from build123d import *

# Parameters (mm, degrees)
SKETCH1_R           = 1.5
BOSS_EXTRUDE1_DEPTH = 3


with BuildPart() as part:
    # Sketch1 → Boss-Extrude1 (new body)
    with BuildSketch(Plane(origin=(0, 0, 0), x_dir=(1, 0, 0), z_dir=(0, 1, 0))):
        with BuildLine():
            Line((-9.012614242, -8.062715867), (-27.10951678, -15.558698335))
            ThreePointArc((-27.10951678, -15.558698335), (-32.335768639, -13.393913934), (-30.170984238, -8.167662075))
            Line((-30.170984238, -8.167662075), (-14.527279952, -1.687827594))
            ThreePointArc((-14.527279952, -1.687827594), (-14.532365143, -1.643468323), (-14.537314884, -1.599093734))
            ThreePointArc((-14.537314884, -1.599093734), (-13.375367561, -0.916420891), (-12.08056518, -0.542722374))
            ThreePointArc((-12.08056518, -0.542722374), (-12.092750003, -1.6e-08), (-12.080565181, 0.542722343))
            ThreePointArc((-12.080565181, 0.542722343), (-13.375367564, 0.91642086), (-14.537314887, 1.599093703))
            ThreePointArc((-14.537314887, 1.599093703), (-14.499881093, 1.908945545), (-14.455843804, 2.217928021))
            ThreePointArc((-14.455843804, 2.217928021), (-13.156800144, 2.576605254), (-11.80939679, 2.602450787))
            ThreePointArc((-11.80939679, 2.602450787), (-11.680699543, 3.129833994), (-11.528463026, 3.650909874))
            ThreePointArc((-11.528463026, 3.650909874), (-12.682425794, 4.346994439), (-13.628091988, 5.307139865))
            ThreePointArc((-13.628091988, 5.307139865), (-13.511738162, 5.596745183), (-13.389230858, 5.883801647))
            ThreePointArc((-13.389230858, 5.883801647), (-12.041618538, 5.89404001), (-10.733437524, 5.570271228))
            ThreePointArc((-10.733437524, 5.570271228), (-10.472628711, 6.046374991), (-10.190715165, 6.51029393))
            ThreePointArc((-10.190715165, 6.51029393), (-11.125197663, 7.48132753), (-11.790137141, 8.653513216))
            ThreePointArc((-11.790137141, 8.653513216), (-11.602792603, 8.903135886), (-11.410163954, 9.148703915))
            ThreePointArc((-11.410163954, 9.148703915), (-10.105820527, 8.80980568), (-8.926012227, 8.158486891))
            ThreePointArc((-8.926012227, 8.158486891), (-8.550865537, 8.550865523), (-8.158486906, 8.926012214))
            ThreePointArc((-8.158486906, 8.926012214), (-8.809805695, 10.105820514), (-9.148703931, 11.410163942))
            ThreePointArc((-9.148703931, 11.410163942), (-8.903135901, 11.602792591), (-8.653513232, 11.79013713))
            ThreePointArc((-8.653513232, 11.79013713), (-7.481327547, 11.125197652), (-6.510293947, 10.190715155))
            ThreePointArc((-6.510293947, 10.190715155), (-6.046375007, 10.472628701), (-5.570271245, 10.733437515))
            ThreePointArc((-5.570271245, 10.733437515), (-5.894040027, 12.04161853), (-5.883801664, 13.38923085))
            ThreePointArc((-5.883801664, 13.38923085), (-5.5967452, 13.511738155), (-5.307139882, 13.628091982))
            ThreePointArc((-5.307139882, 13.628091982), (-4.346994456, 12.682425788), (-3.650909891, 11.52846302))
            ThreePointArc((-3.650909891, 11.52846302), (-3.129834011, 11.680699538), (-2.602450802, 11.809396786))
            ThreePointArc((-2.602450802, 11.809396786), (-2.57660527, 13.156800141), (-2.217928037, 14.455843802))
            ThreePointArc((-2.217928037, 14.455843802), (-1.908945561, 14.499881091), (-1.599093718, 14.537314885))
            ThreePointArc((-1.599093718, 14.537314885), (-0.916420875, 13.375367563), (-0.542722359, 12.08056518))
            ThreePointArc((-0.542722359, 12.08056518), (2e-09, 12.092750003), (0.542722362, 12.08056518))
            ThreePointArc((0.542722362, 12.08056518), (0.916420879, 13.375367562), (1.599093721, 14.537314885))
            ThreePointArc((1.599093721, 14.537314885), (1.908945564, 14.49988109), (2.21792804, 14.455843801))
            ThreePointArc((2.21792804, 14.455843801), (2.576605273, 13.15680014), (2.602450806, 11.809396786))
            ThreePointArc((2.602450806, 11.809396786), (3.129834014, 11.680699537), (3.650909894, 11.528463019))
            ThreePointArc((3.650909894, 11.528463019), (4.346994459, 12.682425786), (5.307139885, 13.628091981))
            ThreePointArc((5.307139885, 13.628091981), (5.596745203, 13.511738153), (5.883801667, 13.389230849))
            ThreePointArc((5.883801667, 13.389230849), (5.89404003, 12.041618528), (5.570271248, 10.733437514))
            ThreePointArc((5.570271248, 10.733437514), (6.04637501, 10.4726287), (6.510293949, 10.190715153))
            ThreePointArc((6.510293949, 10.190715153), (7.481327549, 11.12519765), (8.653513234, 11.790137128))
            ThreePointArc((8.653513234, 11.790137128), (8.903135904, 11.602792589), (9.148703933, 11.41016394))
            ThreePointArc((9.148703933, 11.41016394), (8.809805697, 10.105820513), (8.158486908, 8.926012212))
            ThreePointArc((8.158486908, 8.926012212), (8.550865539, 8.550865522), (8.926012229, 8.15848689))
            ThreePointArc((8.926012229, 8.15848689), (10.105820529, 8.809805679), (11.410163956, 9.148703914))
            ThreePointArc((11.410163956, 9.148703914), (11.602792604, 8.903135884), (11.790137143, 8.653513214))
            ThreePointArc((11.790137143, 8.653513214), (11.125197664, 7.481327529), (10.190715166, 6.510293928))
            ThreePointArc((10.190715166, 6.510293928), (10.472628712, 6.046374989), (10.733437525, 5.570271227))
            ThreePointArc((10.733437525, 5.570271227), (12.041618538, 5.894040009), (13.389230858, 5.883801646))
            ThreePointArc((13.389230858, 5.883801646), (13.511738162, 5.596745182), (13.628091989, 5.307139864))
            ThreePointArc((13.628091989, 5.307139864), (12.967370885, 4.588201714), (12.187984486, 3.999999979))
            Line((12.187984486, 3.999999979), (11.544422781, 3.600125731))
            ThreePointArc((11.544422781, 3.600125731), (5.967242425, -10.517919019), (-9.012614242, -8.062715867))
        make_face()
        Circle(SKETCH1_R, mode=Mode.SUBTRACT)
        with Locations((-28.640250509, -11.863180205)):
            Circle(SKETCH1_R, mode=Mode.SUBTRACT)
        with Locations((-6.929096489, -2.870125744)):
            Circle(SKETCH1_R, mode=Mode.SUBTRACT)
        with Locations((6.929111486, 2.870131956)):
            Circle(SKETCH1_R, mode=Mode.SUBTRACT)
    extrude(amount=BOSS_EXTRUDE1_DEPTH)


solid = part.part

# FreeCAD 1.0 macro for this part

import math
import FreeCAD as App
import Part
import Sketcher
from FreeCAD import Vector
Q = App.Units.Quantity

doc = App.newDocument("Part")
params = doc.addObject("Spreadsheet::Sheet", "Params")
for row, (alias, value) in enumerate([
    ("sketch1_diameter", "3 mm"),
    ("sketch1_radius", "4 mm"),
    ("sketch1_radius2", "5.4 mm"),
    ("pad1_length", "3 mm"),
], start=1):
    params.set(f"A{row}", alias)
    params.set(f"B{row}", "=" + value)
    params.setAlias(f"B{row}", alias)

body = doc.addObject("PartDesign::Body", "Body")

# Sketch on XZ plane
sketch1 = doc.addObject("Sketcher::SketchObject", "Sketch")
body.addObject(sketch1)
sketch1.AttachmentSupport = (doc.XZ_Plane, [""])
sketch1.MapMode = "FlatFace"
sketch1.addGeometry(Part.LineSegment(Vector(-27.109517, 15.558698, 0), Vector(-9.012614, 8.062716, 0)), False)
sketch1.addGeometry(Part.ArcOfCircle(Part.Circle(Vector(0, 0, 0), Vector(0, 0, 1), 12.09275), math.radians(-17.320078), math.radians(138.184075)), False)
sketch1.addGeometry(Part.LineSegment(Vector(11.544423, -3.600126, 0), Vector(12.187984, -4, 0)), False)
sketch1.addGeometry(Part.ArcOfCircle(Part.Circle(Vector(9.338053, -8.586708, 0), Vector(0, 0, 1), 5.4), math.radians(37.396512), math.radians(58.14543)), False)
sketch1.addGeometry(Part.ArcOfCircle(Part.Circle(Vector(0, 0, 0), Vector(0, 0, 1), 14.625), math.radians(-23.722744), math.radians(-21.277256)), False)
sketch1.addGeometry(Part.ArcOfCircle(Part.Circle(Vector(12.674721, -0.531281, 0), Vector(0, 0, 1), 5.4), math.radians(-111.069299), math.radians(-82.396512)), False)
sketch1.addGeometry(Part.ArcOfCircle(Part.Circle(Vector(0, 0, 0), Vector(0, 0, 1), 12.092749), math.radians(-32.572297), math.radians(-27.427703)), False)
sketch1.addGeometry(Part.ArcOfCircle(Part.Circle(Vector(6.797463, -10.710989, 0), Vector(0, 0, 1), 5.4), math.radians(22.396512), math.radians(51.069299)), False)
sketch1.addGeometry(Part.ArcOfCircle(Part.Circle(Vector(-0.000003, 0.000002, 0), Vector(0, 0, 1), 14.625003), math.radians(-38.722744), math.radians(-36.277256)), False)
sketch1.addGeometry(Part.ArcOfCircle(Part.Circle(Vector(12.105334, -3.793637, 0), Vector(0, 0, 1), 5.4), math.radians(-126.069299), math.radians(-97.396512)), False)
sketch1.addGeometry(Part.ArcOfCircle(Part.Circle(Vector(0, 0, 0), Vector(0, 0, 1), 12.09275), math.radians(-47.572297), math.radians(-42.427703)), False)
sketch1.addGeometry(Part.ArcOfCircle(Part.Circle(Vector(3.793637, -12.105334, 0), Vector(0, 0, 1), 5.4), math.radians(7.396512), math.radians(36.069299)), False)
sketch1.addGeometry(Part.ArcOfCircle(Part.Circle(Vector(0, 0, 0), Vector(0, 0, 1), 14.625), math.radians(-53.722744), math.radians(-51.277256)), False)
sketch1.addGeometry(Part.ArcOfCircle(Part.Circle(Vector(10.710989, -6.797463, 0), Vector(0, 0, 1), 5.4), math.radians(-141.069299), math.radians(-112.396512)), False)
sketch1.addGeometry(Part.ArcOfCircle(Part.Circle(Vector(0, 0, 0), Vector(0, 0, 1), 12.09275), math.radians(-62.572297), math.radians(-57.427702)), False)
sketch1.addGeometry(Part.ArcOfCircle(Part.Circle(Vector(0.531281, -12.674721, 0), Vector(0, 0, 1), 5.4), math.radians(-7.603488), math.radians(21.069299)), False)
sketch1.addGeometry(Part.ArcOfCircle(Part.Circle(Vector(-0.000001, 0.000001, 0), Vector(0, 0, 1), 14.625002), math.radians(-68.722744), math.radians(-66.277256)), False)
sketch1.addGeometry(Part.ArcOfCircle(Part.Circle(Vector(8.586708, -9.338053, 0), Vector(0, 0, 1), 5.4), math.radians(-156.069299), math.radians(-127.396512)), False)
sketch1.addGeometry(Part.ArcOfCircle(Part.Circle(Vector(0, 0, 0), Vector(0, 0, 1), 12.09275), math.radians(-77.572297), math.radians(-72.427703)), False)
sketch1.addGeometry(Part.ArcOfCircle(Part.Circle(Vector(-2.767281, -12.380346, 0), Vector(0, 0, 1), 5.4), math.radians(-22.603488), math.radians(6.069299)), False)
sketch1.addGeometry(Part.ArcOfCircle(Part.Circle(Vector(0, 0, 0), Vector(0, 0, 1), 14.625), math.radians(-83.722744), math.radians(-81.277256)), False)
sketch1.addGeometry(Part.ArcOfCircle(Part.Circle(Vector(5.877257, -11.242271, 0), Vector(0, 0, 1), 5.4), math.radians(-171.069299), math.radians(-142.396512)), False)
sketch1.addGeometry(Part.ArcOfCircle(Part.Circle(Vector(0, 0, 0), Vector(0, 0, 1), 12.09275), math.radians(-92.572297), math.radians(-87.427703)), False)
sketch1.addGeometry(Part.ArcOfCircle(Part.Circle(Vector(-5.877257, -11.242271, 0), Vector(0, 0, 1), 5.4), math.radians(-37.603488), math.radians(-8.930701)), False)
sketch1.addGeometry(Part.ArcOfCircle(Part.Circle(Vector(0, -0.000002, 0), Vector(0, 0, 1), 14.624998), math.radians(-98.722744), math.radians(-96.277256)), False)
sketch1.addGeometry(Part.ArcOfCircle(Part.Circle(Vector(2.767281, -12.380346, 0), Vector(0, 0, 1), 5.4), math.radians(173.930701), math.radians(202.603488)), False)
sketch1.addGeometry(Part.ArcOfCircle(Part.Circle(Vector(0, 0, 0), Vector(0, 0, 1), 12.09275), math.radians(-107.572297), math.radians(-102.427703)), False)
sketch1.addGeometry(Part.ArcOfCircle(Part.Circle(Vector(-8.586708, -9.338053, 0), Vector(0, 0, 1), 5.4), math.radians(-52.603488), math.radians(-23.930701)), False)
sketch1.addGeometry(Part.ArcOfCircle(Part.Circle(Vector(-0.000001, -0.000002, 0), Vector(0, 0, 1), 14.624998), math.radians(-113.722744), math.radians(-111.277256)), False)
sketch1.addGeometry(Part.ArcOfCircle(Part.Circle(Vector(-0.531281, -12.674721, 0), Vector(0, 0, 1), 5.4), math.radians(158.930701), math.radians(187.603488)), False)
sketch1.addGeometry(Part.ArcOfCircle(Part.Circle(Vector(0, 0, 0), Vector(0, 0, 1), 12.09275), math.radians(-122.572297), math.radians(-117.427703)), False)
sketch1.addGeometry(Part.ArcOfCircle(Part.Circle(Vector(-10.710989, -6.797463, 0), Vector(0, 0, 1), 5.4), math.radians(-67.603488), math.radians(-38.930701)), False)
sketch1.addGeometry(Part.ArcOfCircle(Part.Circle(Vector(0.000002, 0.000002, 0), Vector(0, 0, 1), 14.625003), math.radians(-128.722744), math.radians(-126.277256)), False)
sketch1.addGeometry(Part.ArcOfCircle(Part.Circle(Vector(-3.793637, -12.105334, 0), Vector(0, 0, 1), 5.4), math.radians(143.930701), math.radians(172.603488)), False)
sketch1.addGeometry(Part.ArcOfCircle(Part.Circle(Vector(0, 0, 0), Vector(0, 0, 1), 12.09275), math.radians(-137.572297), math.radians(-132.427703)), False)
sketch1.addGeometry(Part.ArcOfCircle(Part.Circle(Vector(-12.105334, -3.793637, 0), Vector(0, 0, 1), 5.4), math.radians(-82.603488), math.radians(-53.930701)), False)
sketch1.addGeometry(Part.ArcOfCircle(Part.Circle(Vector(-0.000001, -0.000001, 0), Vector(0, 0, 1), 14.624998), math.radians(-143.722744), math.radians(-141.277256)), False)
sketch1.addGeometry(Part.ArcOfCircle(Part.Circle(Vector(-6.797463, -10.710989, 0), Vector(0, 0, 1), 5.4), math.radians(128.930701), math.radians(157.603488)), False)
sketch1.addGeometry(Part.ArcOfCircle(Part.Circle(Vector(-0.000001, 0, 0), Vector(0, 0, 1), 12.092749), math.radians(-152.572298), math.radians(-147.427703)), False)
sketch1.addGeometry(Part.ArcOfCircle(Part.Circle(Vector(-12.674721, -0.531281, 0), Vector(0, 0, 1), 5.4), math.radians(-97.603488), math.radians(-68.930701)), False)
sketch1.addGeometry(Part.ArcOfCircle(Part.Circle(Vector(-0.000002, -0.000001, 0), Vector(0, 0, 1), 14.624997), math.radians(-158.722744), math.radians(-156.277256)), False)
sketch1.addGeometry(Part.ArcOfCircle(Part.Circle(Vector(-9.338053, -8.586708, 0), Vector(0, 0, 1), 5.4), math.radians(113.930701), math.radians(142.603488)), False)
sketch1.addGeometry(Part.ArcOfCircle(Part.Circle(Vector(0, 0, 0), Vector(0, 0, 1), 12.09275), math.radians(-167.572297), math.radians(-162.427703)), False)
sketch1.addGeometry(Part.ArcOfCircle(Part.Circle(Vector(-12.380346, 2.767281, 0), Vector(0, 0, 1), 5.4), math.radians(-112.603488), math.radians(-83.930701)), False)
sketch1.addGeometry(Part.ArcOfCircle(Part.Circle(Vector(-0.000002, 0, 0), Vector(0, 0, 1), 14.624998), math.radians(-173.722744), math.radians(-171.277256)), False)
sketch1.addGeometry(Part.ArcOfCircle(Part.Circle(Vector(-11.242271, -5.877257, 0), Vector(0, 0, 1), 5.4), math.radians(98.930701), math.radians(127.603488)), False)
sketch1.addGeometry(Part.ArcOfCircle(Part.Circle(Vector(0, 0, 0), Vector(0, 0, 1), 12.09275), math.radians(177.427703), math.radians(182.572297)), False)
sketch1.addGeometry(Part.ArcOfCircle(Part.Circle(Vector(-11.242271, 5.877257, 0), Vector(0, 0, 1), 5.4), math.radians(-127.603488), math.radians(-98.930701)), False)
sketch1.addGeometry(Part.ArcOfCircle(Part.Circle(Vector(0.00015, -0.000017, 0), Vector(0, 0, 1), 14.625151), math.radians(173.3729), math.radians(173.722742)), False)
sketch1.addGeometry(Part.LineSegment(Vector(-14.52728, 1.687828, 0), Vector(-30.170984, 8.167662, 0)), False)
sketch1.addGeometry(Part.ArcOfCircle(Part.Circle(Vector(-28.640251, 11.86318, 0), Vector(0, 0, 1), 4), math.radians(67.5), math.radians(247.5)), False)
sketch1.addGeometry(Part.Circle(Vector(-28.640251, 11.86318, 0), Vector(0, 0, 1), 1.5), False)
sketch1.addGeometry(Part.Circle(Vector(-6.929096, 2.870126, 0), Vector(0, 0, 1), 1.5), False)
sketch1.addGeometry(Part.Circle(Vector(0, 0, 0), Vector(0, 0, 1), 1.5), False)
sketch1.addGeometry(Part.Circle(Vector(6.929111, -2.870132, 0), Vector(0, 0, 1), 1.5), False)
sketch1.addConstraint(Sketcher.Constraint("Coincident", 0, 2, 1, 2))
sketch1.addConstraint(Sketcher.Constraint("Coincident", 1, 1, 2, 1))
sketch1.addConstraint(Sketcher.Constraint("Tangent", 2, 2, 3, 2))
sketch1.addConstraint(Sketcher.Constraint("Coincident", 3, 1, 4, 2))
sketch1.addConstraint(Sketcher.Constraint("Coincident", 4, 1, 5, 2))
sketch1.addConstraint(Sketcher.Constraint("Coincident", 5, 1, 6, 2))
sketch1.addConstraint(Sketcher.Constraint("Coincident", 6, 1, 7, 2))
sketch1.addConstraint(Sketcher.Constraint("Coincident", 7, 1, 8, 2))
sketch1.addConstraint(Sketcher.Constraint("Coincident", 8, 1, 9, 2))
sketch1.addConstraint(Sketcher.Constraint("Coincident", 9, 1, 10, 2))
sketch1.addConstraint(Sketcher.Constraint("Coincident", 10, 1, 11, 2))
sketch1.addConstraint(Sketcher.Constraint("Coincident", 11, 1, 12, 2))
sketch1.addConstraint(Sketcher.Constraint("Coincident", 12, 1, 13, 2))
sketch1.addConstraint(Sketcher.Constraint("Coincident", 13, 1, 14, 2))
sketch1.addConstraint(Sketcher.Constraint("Coincident", 14, 1, 15, 2))
sketch1.addConstraint(Sketcher.Constraint("Coincident", 15, 1, 16, 2))
sketch1.addConstraint(Sketcher.Constraint("Coincident", 16, 1, 17, 2))
sketch1.addConstraint(Sketcher.Constraint("Coincident", 17, 1, 18, 2))
sketch1.addConstraint(Sketcher.Constraint("Coincident", 18, 1, 19, 2))
sketch1.addConstraint(Sketcher.Constraint("Coincident", 19, 1, 20, 2))
sketch1.addConstraint(Sketcher.Constraint("Coincident", 20, 1, 21, 2))
sketch1.addConstraint(Sketcher.Constraint("Coincident", 21, 1, 22, 2))
sketch1.addConstraint(Sketcher.Constraint("Coincident", 22, 1, 23, 2))
sketch1.addConstraint(Sketcher.Constraint("Coincident", 23, 1, 24, 2))
sketch1.addConstraint(Sketcher.Constraint("Coincident", 24, 1, 25, 2))
sketch1.addConstraint(Sketcher.Constraint("Coincident", 25, 1, 26, 2))
sketch1.addConstraint(Sketcher.Constraint("Coincident", 26, 1, 27, 2))
sketch1.addConstraint(Sketcher.Constraint("Coincident", 27, 1, 28, 2))
sketch1.addConstraint(Sketcher.Constraint("Coincident", 28, 1, 29, 2))
sketch1.addConstraint(Sketcher.Constraint("Coincident", 29, 1, 30, 2))
sketch1.addConstraint(Sketcher.Constraint("Coincident", 30, 1, 31, 2))
sketch1.addConstraint(Sketcher.Constraint("Coincident", 31, 1, 32, 2))
sketch1.addConstraint(Sketcher.Constraint("Coincident", 32, 1, 33, 2))
sketch1.addConstraint(Sketcher.Constraint("Coincident", 33, 1, 34, 2))
sketch1.addConstraint(Sketcher.Constraint("Coincident", 34, 1, 35, 2))
sketch1.addConstraint(Sketcher.Constraint("Coincident", 35, 1, 36, 2))
sketch1.addConstraint(Sketcher.Constraint("Coincident", 36, 1, 37, 2))
sketch1.addConstraint(Sketcher.Constraint("Coincident", 37, 1, 38, 2))
sketch1.addConstraint(Sketcher.Constraint("Coincident", 38, 1, 39, 2))
sketch1.addConstraint(Sketcher.Constraint("Coincident", 39, 1, 40, 2))
sketch1.addConstraint(Sketcher.Constraint("Coincident", 40, 1, 41, 2))
sketch1.addConstraint(Sketcher.Constraint("Coincident", 41, 1, 42, 2))
sketch1.addConstraint(Sketcher.Constraint("Coincident", 42, 1, 43, 2))
sketch1.addConstraint(Sketcher.Constraint("Coincident", 43, 1, 44, 2))
sketch1.addConstraint(Sketcher.Constraint("Coincident", 44, 1, 45, 2))
sketch1.addConstraint(Sketcher.Constraint("Coincident", 45, 1, 46, 2))
sketch1.addConstraint(Sketcher.Constraint("Coincident", 46, 1, 47, 2))
sketch1.addConstraint(Sketcher.Constraint("Coincident", 47, 1, 48, 2))
sketch1.addConstraint(Sketcher.Constraint("Coincident", 48, 1, 49, 1))
sketch1.addConstraint(Sketcher.Constraint("Tangent", 49, 2, 50, 2))
sketch1.addConstraint(Sketcher.Constraint("Tangent", 50, 1, 0, 1))
sketch1.addConstraint(Sketcher.Constraint("Coincident", 1, 3, -1, 1))
sketch1.addConstraint(Sketcher.Constraint("Coincident", 4, 3, -1, 1))
sketch1.addConstraint(Sketcher.Constraint("Coincident", 6, 3, -1, 1))
sketch1.addConstraint(Sketcher.Constraint("Coincident", 8, 3, -1, 1))
sketch1.addConstraint(Sketcher.Constraint("Coincident", 10, 3, -1, 1))
sketch1.addConstraint(Sketcher.Constraint("Coincident", 12, 3, -1, 1))
sketch1.addConstraint(Sketcher.Constraint("Coincident", 14, 3, -1, 1))
sketch1.addConstraint(Sketcher.Constraint("Coincident", 16, 3, -1, 1))
sketch1.addConstraint(Sketcher.Constraint("Coincident", 18, 3, -1, 1))
sketch1.addConstraint(Sketcher.Constraint("Coincident", 20, 3, -1, 1))
sketch1.addConstraint(Sketcher.Constraint("Coincident", 22, 3, -1, 1))
sketch1.addConstraint(Sketcher.Constraint("Coincident", 24, 3, -1, 1))
sketch1.addConstraint(Sketcher.Constraint("Coincident", 26, 3, -1, 1))
sketch1.addConstraint(Sketcher.Constraint("Coincident", 28, 3, -1, 1))
sketch1.addConstraint(Sketcher.Constraint("Coincident", 30, 3, -1, 1))
sketch1.addConstraint(Sketcher.Constraint("Coincident", 32, 3, -1, 1))
sketch1.addConstraint(Sketcher.Constraint("Coincident", 34, 3, -1, 1))
sketch1.addConstraint(Sketcher.Constraint("Coincident", 36, 3, -1, 1))
sketch1.addConstraint(Sketcher.Constraint("Coincident", 38, 3, -1, 1))
sketch1.addConstraint(Sketcher.Constraint("Coincident", 40, 3, -1, 1))
sketch1.addConstraint(Sketcher.Constraint("Coincident", 42, 3, -1, 1))
sketch1.addConstraint(Sketcher.Constraint("Coincident", 44, 3, -1, 1))
sketch1.addConstraint(Sketcher.Constraint("Coincident", 46, 3, -1, 1))
sketch1.addConstraint(Sketcher.Constraint("Coincident", 53, 3, -1, 1))
sketch1.addConstraint(Sketcher.Constraint("Coincident", 51, 3, 50, 3))
sketch1.addConstraint(Sketcher.Constraint("Equal", 3, 5))
sketch1.addConstraint(Sketcher.Constraint("Equal", 1, 6))
sketch1.addConstraint(Sketcher.Constraint("Equal", 5, 7))
sketch1.addConstraint(Sketcher.Constraint("Equal", 7, 9))
sketch1.addConstraint(Sketcher.Constraint("Equal", 6, 10))
sketch1.addConstraint(Sketcher.Constraint("Equal", 9, 11))
sketch1.addConstraint(Sketcher.Constraint("Equal", 4, 12))
sketch1.addConstraint(Sketcher.Constraint("Equal", 11, 13))
sketch1.addConstraint(Sketcher.Constraint("Equal", 10, 14))
sketch1.addConstraint(Sketcher.Constraint("Equal", 13, 15))
sketch1.addConstraint(Sketcher.Constraint("Equal", 12, 16))
sketch1.addConstraint(Sketcher.Constraint("Equal", 15, 17))
sketch1.addConstraint(Sketcher.Constraint("Equal", 14, 18))
sketch1.addConstraint(Sketcher.Constraint("Equal", 17, 19))
sketch1.addConstraint(Sketcher.Constraint("Equal", 16, 20))
sketch1.addConstraint(Sketcher.Constraint("Equal", 19, 21))
sketch1.addConstraint(Sketcher.Constraint("Equal", 18, 22))
sketch1.addConstraint(Sketcher.Constraint("Equal", 21, 23))
sketch1.addConstraint(Sketcher.Constraint("Equal", 4, 24))
sketch1.addConstraint(Sketcher.Constraint("Equal", 23, 25))
sketch1.addConstraint(Sketcher.Constraint("Equal", 22, 26))
sketch1.addConstraint(Sketcher.Constraint("Equal", 25, 27))
sketch1.addConstraint(Sketcher.Constraint("Equal", 24, 28))
sketch1.addConstraint(Sketcher.Constraint("Equal", 27, 29))
sketch1.addConstraint(Sketcher.Constraint("Equal", 26, 30))
sketch1.addConstraint(Sketcher.Constraint("Equal", 29, 31))
sketch1.addConstraint(Sketcher.Constraint("Equal", 16, 32))
sketch1.addConstraint(Sketcher.Constraint("Equal", 31, 33))
sketch1.addConstraint(Sketcher.Constraint("Equal", 30, 34))
sketch1.addConstraint(Sketcher.Constraint("Equal", 33, 35))
sketch1.addConstraint(Sketcher.Constraint("Equal", 28, 36))
sketch1.addConstraint(Sketcher.Constraint("Equal", 35, 37))
sketch1.addConstraint(Sketcher.Constraint("Equal", 34, 38))
sketch1.addConstraint(Sketcher.Constraint("Equal", 37, 39))
sketch1.addConstraint(Sketcher.Constraint("Equal", 36, 40))
sketch1.addConstraint(Sketcher.Constraint("Equal", 39, 41))
sketch1.addConstraint(Sketcher.Constraint("Equal", 38, 42))
sketch1.addConstraint(Sketcher.Constraint("Equal", 41, 43))
sketch1.addConstraint(Sketcher.Constraint("Equal", 40, 44))
sketch1.addConstraint(Sketcher.Constraint("Equal", 43, 45))
sketch1.addConstraint(Sketcher.Constraint("Equal", 42, 46))
sketch1.addConstraint(Sketcher.Constraint("Equal", 45, 47))
sketch1.addConstraint(Sketcher.Constraint("Equal", 51, 52))
sketch1.addConstraint(Sketcher.Constraint("Equal", 52, 53))
sketch1.addConstraint(Sketcher.Constraint("Equal", 53, 54))
sketch1.addConstraint(Sketcher.Constraint("Symmetric", 21, 3, 23, 3, -2))
sketch1.addConstraint(Sketcher.Constraint("Symmetric", 19, 3, 25, 3, -2))
sketch1.addConstraint(Sketcher.Constraint("Symmetric", 17, 3, 27, 3, -2))
sketch1.addConstraint(Sketcher.Constraint("Symmetric", 15, 3, 29, 3, -2))
sketch1.addConstraint(Sketcher.Constraint("Symmetric", 13, 3, 31, 3, -2))
sketch1.addConstraint(Sketcher.Constraint("Symmetric", 11, 3, 33, 3, -2))
sketch1.addConstraint(Sketcher.Constraint("Symmetric", 9, 3, 35, 3, -2))
sketch1.addConstraint(Sketcher.Constraint("Symmetric", 7, 3, 37, 3, -2))
sketch1.addConstraint(Sketcher.Constraint("Symmetric", 5, 3, 39, 3, -2))
sketch1.addConstraint(Sketcher.Constraint("Symmetric", 3, 3, 41, 3, -2))
sketch1.addConstraint(Sketcher.Constraint("Symmetric", 45, 3, 47, 3, -1))
sketch1.addConstraint(Sketcher.Constraint("Parallel", 0, 49))
sketch1.addConstraint(Sketcher.Constraint("Horizontal", 8, 1, 35, 1))
sketch1.addConstraint(Sketcher.Constraint("Vertical", 44, 1, 47, 1))
sketch1.addConstraint(Sketcher.Constraint("Diameter", 51, 3.0))
sketch1.addConstraint(Sketcher.Constraint("Radius", 50, 4.0))
sketch1.addConstraint(Sketcher.Constraint("Radius", 3, 5.4))
sketch1.addConstraint(Sketcher.Constraint("DistanceY", 2, 2, -1, 1, 4.0))
sketch1.addConstraint(Sketcher.Constraint("Angle", 0, Q("-22.5 deg")))
sketch1.addConstraint(Sketcher.Constraint("Radius", 4, 14.625))
sketch1.addConstraint(Sketcher.Constraint("Radius", 1, 12.09275))
sketch1.addConstraint(Sketcher.Constraint("Radius", 48, 14.625151))
sketch1.addConstraint(Sketcher.Constraint("DistanceY", 4, 1, -1, 1, 5.883802))
sketch1.addConstraint(Sketcher.Constraint("DistanceX", -1, 1, 15, 1, 5.883802))
sketch1.addConstraint(Sketcher.Constraint("DistanceY", -1, 1, 50, 1, 15.558698))
sketch1.addConstraint(Sketcher.Constraint("DistanceY", 3, 3, -1, 1, 8.586708))
sketch1.addConstraint(Sketcher.Constraint("DistanceX", -1, 1, 5, 3, 12.674721))
sketch1.addConstraint(Sketcher.Constraint("DistanceY", 7, 3, -1, 1, 10.710989))
sketch1.addConstraint(Sketcher.Constraint("DistanceX", -1, 1, 13, 3, 10.710989))
sketch1.addConstraint(Sketcher.Constraint("DistanceX", -1, 1, 15, 3, 0.531281))
sketch1.addConstraint(Sketcher.Constraint("DistanceX", -1, 1, 17, 3, 8.586708))
sketch1.addConstraint(Sketcher.Constraint("DistanceX", 19, 3, -1, 1, 2.767281))
sketch1.addConstraint(Sketcher.Constraint("DistanceY", 21, 3, -1, 1, 11.242271))
sketch1.addConstraint(Sketcher.Constraint("DistanceY", -1, 1, 43, 3, 2.767281))
sketch1.addConstraint(Sketcher.Constraint("DistanceX", 45, 3, -1, 1, 11.242271))
sketch1.addConstraint(Sketcher.Constraint("DistanceX", -1, 1, 48, 3, 0.00015))
sketch1.addConstraint(Sketcher.Constraint("DistanceX", 50, 3, -1, 1, 28.640251))
sketch1.addConstraint(Sketcher.Constraint("DistanceX", -1, 1, 54, 3, 6.929111))
sketch1.addConstraint(Sketcher.Constraint("DistanceY", 54, 3, -1, 1, 2.870132))
sketch1.addConstraint(Sketcher.Constraint("DistanceX", -1, 1, 3, 1, 13.628092))
sketch1.addConstraint(Sketcher.Constraint("DistanceX", -1, 1, 16, 1, 5.30714))
sketch1.addConstraint(Sketcher.Constraint("DistanceX", -1, 1, 18, 1, 2.602451))
sketch1.addConstraint(Sketcher.Constraint("DistanceY", 42, 1, -1, 1, 2.602451))
sketch1.addConstraint(Sketcher.Constraint("DistanceX", -1, 1, 7, 3, 6.797463))
sketch1.addConstraint(Sketcher.Constraint("DistanceX", -1, 1, 9, 3, 12.105334))
sketch1.addConstraint(Sketcher.Constraint("DistanceY", 9, 3, -1, 1, 3.793637))
sketch1.addConstraint(Sketcher.Constraint("DistanceX", -1, 1, 11, 3, 3.793637))
sketch1.addConstraint(Sketcher.Constraint("DistanceY", 11, 3, -1, 1, 12.105334))
sketch1.addConstraint(Sketcher.Constraint("DistanceY", 13, 3, -1, 1, 6.797463))
sketch1.addConstraint(Sketcher.Constraint("DistanceX", -1, 1, 21, 3, 5.877257))
sketch1.addConstraint(Sketcher.Constraint("DistanceY", 45, 3, -1, 1, 5.877257))
sketch1.addConstraint(Sketcher.Constraint("DistanceX", 52, 3, -1, 1, 6.929096))
sketch1.addConstraint(Sketcher.Constraint("DistanceY", -1, 1, 52, 3, 2.870126))
sketch1.setExpression("Constraints[135]", "Params.sketch1_diameter")
sketch1.setExpression("Constraints[136]", "Params.sketch1_radius")
sketch1.setExpression("Constraints[137]", "Params.sketch1_radius2")
pad1 = doc.addObject("PartDesign::Pad", "Pad")
body.addObject(pad1)
pad1.Profile = sketch1
pad1.setExpression("Length", "Params.pad1_length")
pad1.Reversed = True

doc.recompute()
